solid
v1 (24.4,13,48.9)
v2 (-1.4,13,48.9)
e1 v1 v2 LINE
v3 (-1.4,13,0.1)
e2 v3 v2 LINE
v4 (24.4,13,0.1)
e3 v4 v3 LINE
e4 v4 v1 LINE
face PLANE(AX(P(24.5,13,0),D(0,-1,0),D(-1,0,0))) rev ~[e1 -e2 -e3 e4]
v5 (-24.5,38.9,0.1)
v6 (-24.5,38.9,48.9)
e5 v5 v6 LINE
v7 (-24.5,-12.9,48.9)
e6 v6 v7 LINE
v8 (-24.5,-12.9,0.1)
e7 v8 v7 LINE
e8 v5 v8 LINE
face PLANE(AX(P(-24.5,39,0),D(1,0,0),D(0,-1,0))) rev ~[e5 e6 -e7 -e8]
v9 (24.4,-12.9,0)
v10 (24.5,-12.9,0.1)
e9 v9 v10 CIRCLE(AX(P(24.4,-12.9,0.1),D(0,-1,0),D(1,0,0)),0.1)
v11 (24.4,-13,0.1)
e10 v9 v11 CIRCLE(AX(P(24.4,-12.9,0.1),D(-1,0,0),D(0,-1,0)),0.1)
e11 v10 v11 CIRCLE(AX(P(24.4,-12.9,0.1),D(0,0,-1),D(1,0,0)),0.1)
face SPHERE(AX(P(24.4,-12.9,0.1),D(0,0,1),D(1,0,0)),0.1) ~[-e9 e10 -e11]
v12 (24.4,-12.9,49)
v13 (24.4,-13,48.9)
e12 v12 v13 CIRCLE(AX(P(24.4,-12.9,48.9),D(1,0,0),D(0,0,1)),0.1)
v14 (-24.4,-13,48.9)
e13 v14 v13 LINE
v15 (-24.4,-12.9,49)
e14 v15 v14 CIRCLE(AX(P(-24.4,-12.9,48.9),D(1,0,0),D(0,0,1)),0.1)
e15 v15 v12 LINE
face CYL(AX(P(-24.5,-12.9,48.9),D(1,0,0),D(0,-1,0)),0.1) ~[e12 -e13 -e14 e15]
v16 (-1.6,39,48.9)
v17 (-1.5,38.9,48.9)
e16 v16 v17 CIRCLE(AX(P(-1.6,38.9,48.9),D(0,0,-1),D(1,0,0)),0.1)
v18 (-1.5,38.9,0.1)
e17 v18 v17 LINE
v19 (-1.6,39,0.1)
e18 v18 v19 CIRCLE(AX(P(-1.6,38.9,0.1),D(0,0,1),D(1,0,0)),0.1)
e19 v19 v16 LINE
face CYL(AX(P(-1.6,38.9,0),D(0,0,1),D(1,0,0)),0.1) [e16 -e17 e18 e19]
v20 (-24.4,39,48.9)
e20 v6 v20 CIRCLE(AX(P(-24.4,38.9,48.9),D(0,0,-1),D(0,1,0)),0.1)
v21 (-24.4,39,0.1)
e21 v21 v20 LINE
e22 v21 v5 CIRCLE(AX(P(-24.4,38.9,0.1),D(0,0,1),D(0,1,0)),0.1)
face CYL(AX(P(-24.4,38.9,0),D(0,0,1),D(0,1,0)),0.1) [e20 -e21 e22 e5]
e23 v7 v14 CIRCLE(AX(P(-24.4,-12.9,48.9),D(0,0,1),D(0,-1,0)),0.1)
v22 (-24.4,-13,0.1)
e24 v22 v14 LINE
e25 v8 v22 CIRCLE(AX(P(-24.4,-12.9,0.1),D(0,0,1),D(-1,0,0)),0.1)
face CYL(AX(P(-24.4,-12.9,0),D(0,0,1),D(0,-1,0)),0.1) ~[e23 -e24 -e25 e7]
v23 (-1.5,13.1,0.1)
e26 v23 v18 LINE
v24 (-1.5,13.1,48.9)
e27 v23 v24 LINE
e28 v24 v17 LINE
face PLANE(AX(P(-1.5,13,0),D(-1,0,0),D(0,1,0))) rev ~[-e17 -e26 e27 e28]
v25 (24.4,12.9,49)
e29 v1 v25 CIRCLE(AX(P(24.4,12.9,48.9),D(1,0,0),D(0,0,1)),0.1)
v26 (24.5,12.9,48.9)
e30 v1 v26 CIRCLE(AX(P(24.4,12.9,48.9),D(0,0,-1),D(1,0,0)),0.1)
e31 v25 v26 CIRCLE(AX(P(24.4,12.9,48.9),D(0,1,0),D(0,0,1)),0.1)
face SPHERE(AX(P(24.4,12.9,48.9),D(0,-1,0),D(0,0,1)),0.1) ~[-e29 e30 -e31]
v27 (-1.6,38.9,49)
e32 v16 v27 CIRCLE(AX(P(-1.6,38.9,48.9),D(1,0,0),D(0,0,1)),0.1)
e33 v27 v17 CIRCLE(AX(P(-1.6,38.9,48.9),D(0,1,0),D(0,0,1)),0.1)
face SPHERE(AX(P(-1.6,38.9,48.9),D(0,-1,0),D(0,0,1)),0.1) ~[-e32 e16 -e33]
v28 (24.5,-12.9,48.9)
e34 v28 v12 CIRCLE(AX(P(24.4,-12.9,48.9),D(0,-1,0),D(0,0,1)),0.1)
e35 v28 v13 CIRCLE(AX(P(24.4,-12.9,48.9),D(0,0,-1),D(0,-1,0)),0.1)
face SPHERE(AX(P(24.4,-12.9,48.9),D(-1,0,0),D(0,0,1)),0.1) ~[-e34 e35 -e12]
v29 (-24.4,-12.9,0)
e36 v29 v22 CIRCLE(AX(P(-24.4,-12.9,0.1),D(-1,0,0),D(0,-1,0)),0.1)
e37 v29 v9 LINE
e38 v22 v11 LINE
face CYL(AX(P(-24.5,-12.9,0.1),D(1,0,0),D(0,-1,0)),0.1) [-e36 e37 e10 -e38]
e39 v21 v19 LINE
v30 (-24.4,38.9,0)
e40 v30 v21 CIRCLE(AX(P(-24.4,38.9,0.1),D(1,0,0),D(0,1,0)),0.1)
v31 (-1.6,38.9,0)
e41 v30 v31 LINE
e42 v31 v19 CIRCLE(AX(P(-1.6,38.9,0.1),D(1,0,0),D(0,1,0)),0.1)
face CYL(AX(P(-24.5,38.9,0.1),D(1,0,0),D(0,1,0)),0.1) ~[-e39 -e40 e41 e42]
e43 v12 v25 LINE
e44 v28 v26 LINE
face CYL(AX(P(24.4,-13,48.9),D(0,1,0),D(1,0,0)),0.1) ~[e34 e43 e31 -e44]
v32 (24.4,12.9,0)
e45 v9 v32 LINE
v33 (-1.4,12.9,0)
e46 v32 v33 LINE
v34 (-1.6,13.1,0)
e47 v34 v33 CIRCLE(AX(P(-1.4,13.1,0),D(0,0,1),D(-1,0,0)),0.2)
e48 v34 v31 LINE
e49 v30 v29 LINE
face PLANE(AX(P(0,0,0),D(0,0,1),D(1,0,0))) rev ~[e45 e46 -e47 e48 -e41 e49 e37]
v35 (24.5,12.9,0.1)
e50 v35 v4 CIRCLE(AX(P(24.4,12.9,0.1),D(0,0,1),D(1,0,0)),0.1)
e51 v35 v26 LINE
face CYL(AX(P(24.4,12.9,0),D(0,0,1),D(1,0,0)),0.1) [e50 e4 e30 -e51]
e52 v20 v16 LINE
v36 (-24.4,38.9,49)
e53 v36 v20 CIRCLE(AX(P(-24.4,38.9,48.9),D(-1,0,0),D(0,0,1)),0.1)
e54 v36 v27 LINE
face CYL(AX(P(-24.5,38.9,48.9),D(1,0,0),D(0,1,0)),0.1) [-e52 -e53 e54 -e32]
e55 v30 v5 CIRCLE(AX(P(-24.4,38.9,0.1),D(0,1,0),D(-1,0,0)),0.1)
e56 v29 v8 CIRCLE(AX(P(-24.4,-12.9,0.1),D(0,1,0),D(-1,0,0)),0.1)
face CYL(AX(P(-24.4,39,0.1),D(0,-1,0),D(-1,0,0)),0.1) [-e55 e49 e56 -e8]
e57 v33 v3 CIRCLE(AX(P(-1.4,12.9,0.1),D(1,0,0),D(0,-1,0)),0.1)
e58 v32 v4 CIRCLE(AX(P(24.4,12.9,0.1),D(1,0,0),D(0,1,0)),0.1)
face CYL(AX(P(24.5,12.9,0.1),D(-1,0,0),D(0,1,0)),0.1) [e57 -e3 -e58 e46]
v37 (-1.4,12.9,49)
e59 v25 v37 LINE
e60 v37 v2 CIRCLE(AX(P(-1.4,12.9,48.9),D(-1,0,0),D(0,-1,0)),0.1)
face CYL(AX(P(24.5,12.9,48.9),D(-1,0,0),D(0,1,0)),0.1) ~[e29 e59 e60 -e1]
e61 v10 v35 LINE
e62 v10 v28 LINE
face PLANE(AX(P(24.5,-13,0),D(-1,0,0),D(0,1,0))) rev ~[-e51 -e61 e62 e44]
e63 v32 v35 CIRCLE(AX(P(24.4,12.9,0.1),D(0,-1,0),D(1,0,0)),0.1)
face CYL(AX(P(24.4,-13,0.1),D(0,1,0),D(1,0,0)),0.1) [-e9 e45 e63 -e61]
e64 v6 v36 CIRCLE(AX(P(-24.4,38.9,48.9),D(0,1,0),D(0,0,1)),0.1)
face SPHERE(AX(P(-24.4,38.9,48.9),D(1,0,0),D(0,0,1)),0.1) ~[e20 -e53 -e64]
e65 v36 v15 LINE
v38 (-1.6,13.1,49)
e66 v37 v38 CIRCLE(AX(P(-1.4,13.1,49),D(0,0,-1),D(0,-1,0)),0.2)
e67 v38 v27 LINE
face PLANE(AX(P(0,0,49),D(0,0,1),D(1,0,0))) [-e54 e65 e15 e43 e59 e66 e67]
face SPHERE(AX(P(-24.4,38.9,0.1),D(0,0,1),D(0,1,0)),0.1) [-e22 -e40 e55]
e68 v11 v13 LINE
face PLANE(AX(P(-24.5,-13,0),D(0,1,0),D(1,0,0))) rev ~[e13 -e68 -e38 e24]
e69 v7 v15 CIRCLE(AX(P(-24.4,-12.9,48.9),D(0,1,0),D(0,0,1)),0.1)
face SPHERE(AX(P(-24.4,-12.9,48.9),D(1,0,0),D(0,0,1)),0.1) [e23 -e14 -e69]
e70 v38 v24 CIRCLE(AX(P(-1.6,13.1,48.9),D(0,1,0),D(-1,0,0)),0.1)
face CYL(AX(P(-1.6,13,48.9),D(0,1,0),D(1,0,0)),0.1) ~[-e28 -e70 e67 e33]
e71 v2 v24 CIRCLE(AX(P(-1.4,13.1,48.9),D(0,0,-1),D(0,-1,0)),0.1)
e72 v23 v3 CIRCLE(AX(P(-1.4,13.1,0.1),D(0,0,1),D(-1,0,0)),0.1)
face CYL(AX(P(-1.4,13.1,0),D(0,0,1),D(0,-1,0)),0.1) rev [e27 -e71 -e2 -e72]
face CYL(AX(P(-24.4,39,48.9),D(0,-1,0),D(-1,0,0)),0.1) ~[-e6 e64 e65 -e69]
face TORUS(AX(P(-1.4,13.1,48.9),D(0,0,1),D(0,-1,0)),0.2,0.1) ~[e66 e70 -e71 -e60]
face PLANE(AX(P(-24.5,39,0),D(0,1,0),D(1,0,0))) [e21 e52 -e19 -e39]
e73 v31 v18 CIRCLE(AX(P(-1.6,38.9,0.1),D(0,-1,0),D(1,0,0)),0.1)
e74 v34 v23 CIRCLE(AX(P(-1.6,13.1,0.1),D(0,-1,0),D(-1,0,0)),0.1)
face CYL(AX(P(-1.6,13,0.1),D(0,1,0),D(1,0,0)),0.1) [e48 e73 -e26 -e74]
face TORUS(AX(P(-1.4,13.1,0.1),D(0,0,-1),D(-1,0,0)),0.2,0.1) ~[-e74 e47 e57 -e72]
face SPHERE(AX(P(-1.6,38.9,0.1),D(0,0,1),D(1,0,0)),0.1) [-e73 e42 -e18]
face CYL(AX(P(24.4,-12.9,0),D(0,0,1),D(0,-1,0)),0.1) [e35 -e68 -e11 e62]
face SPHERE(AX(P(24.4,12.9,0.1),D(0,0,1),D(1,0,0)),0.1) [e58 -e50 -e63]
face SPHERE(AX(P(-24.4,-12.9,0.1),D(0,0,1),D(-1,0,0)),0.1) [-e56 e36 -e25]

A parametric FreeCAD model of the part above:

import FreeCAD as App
import Part
import Sketcher
Q = App.Units.Quantity

doc = App.newDocument("Part")
body = doc.addObject("PartDesign::Body", "Body")

sketch1 = body.newObject("Sketcher::SketchObject", "Sketch")
sketch1.AttachmentSupport = (doc.getObject("XY_Plane"), [""])
sketch1.MapMode = "FlatFace"
sketch1.addGeometry(Part.LineSegment(App.Vector(-24, -13, 0), App.Vector(24, -13, 0)), False)
sketch1.addGeometry(Part.LineSegment(App.Vector(24, -13, 0), App.Vector(24, 13, 0)), False)
sketch1.addGeometry(Part.LineSegment(App.Vector(24, 13, 0), App.Vector(-2, 13, 0)), False)
sketch1.addGeometry(Part.LineSegment(App.Vector(-2, 13, 0), App.Vector(-2, 39, 0)), False)
sketch1.addGeometry(Part.LineSegment(App.Vector(-2, 39, 0), App.Vector(-24, 39, 0)), False)
sketch1.addGeometry(Part.LineSegment(App.Vector(-24, 39, 0), App.Vector(-24, -13, 0)), False)
sketch1.addConstraint(Sketcher.Constraint("Coincident", 0, 2, 1, 1))
sketch1.addConstraint(Sketcher.Constraint("Coincident", 1, 2, 2, 1))
sketch1.addConstraint(Sketcher.Constraint("Coincident", 2, 2, 3, 1))
sketch1.addConstraint(Sketcher.Constraint("Coincident", 3, 2, 4, 1))
sketch1.addConstraint(Sketcher.Constraint("Coincident", 4, 2, 5, 1))
sketch1.addConstraint(Sketcher.Constraint("Coincident", 5, 2, 0, 1))
sketch1.addConstraint(Sketcher.Constraint("Horizontal", 0))
sketch1.addConstraint(Sketcher.Constraint("Vertical", 1))
sketch1.addConstraint(Sketcher.Constraint("Horizontal", 2))
sketch1.addConstraint(Sketcher.Constraint("Vertical", 3))
sketch1.addConstraint(Sketcher.Constraint("Horizontal", 4))
sketch1.addConstraint(Sketcher.Constraint("Vertical", 5))
sketch1.addConstraint(Sketcher.Constraint("Symmetric", 1, 2, 5, 2, -1, 1))
sketch1.addConstraint(Sketcher.Constraint("Equal", 2, 1))
sketch1.addConstraint(Sketcher.Constraint("Equal", 1, 3))
sketch1.addConstraint(Sketcher.Constraint("DistanceX", 0, 1, 0, 2, Q("49 mm")))
sketch1.addConstraint(Sketcher.Constraint("DistanceX", 2, 2, 2, 1, Q("26 mm")))
pad1 = body.newObject("PartDesign::Pad", "Pad")
pad1.Profile = sketch1
pad1.Length = 49
doc.recompute()

fillet = body.newObject("PartDesign::Fillet", "Fillet")
fillet.Base = (pad1, ["Edge1"])
fillet.UseAllEdges = True
fillet.Radius = 0.1

doc.recompute()
